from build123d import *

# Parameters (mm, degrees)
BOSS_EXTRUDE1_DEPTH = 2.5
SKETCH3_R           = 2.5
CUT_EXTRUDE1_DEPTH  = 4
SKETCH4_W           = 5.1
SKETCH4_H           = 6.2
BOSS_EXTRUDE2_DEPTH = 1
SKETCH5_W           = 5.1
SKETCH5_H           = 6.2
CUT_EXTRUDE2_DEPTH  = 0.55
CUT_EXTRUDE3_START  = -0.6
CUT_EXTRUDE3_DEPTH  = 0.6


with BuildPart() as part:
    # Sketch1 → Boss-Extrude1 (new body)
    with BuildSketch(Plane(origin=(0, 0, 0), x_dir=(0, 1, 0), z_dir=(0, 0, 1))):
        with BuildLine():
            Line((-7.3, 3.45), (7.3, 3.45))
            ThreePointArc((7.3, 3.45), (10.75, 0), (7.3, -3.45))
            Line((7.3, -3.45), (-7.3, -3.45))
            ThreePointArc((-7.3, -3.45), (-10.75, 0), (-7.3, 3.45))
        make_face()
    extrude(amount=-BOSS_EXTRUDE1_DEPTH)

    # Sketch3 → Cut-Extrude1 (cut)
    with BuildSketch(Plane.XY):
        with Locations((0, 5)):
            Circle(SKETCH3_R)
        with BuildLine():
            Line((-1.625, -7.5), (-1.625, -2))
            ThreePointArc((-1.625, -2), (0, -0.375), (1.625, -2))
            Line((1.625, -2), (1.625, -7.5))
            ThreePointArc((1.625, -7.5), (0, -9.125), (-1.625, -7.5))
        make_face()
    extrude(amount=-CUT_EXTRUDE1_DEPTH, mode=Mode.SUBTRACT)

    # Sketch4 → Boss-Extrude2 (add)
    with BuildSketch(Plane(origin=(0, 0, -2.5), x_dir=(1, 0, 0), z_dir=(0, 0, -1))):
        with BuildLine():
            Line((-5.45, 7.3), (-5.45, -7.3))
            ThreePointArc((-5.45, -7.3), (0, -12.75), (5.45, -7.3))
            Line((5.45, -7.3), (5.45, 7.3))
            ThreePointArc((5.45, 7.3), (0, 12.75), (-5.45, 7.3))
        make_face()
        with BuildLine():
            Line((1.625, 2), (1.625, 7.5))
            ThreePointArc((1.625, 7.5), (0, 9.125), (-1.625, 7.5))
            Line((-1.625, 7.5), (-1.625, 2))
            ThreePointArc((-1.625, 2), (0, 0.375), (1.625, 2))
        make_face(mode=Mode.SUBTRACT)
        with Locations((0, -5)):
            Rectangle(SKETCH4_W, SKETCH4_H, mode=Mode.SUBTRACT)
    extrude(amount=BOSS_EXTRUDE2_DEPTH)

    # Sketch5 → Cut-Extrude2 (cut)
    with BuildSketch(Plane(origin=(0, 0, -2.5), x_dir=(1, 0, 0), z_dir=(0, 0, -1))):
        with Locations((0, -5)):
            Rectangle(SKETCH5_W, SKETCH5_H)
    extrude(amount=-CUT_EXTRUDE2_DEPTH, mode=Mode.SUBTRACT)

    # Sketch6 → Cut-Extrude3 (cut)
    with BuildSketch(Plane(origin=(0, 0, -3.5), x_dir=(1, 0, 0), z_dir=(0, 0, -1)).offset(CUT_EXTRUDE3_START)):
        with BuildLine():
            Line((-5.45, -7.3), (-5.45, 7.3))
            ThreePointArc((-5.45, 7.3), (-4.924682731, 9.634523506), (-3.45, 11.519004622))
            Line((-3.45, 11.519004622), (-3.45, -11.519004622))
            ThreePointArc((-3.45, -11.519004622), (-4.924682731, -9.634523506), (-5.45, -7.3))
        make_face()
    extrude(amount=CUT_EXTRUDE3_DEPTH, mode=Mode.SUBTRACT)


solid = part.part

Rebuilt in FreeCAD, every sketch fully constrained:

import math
import FreeCAD as App
import Part
import Sketcher
from FreeCAD import Vector
Q = App.Units.Quantity

doc = App.newDocument("Part")
body = doc.addObject("PartDesign::Body", "Body")

sketch1 = doc.addObject("Sketcher::SketchObject", "Sketch")
body.addObject(sketch1)
sketch1.AttachmentSupport = (doc.XY_Plane, [""])
sketch1.MapMode = "FlatFace"
sketch1.addGeometry(Part.LineSegment(Vector(-3.5, 7.3, 0), Vector(-3.5, -7.3, 0)), False)
sketch1.addGeometry(Part.ArcOfCircle(Part.Circle(Vector(0, -7.3, 0), Vector(0, 0, 1), 3.5), math.radians(180), math.radians(360)), False)
sketch1.addGeometry(Part.LineSegment(Vector(3.5, -7.3, 0), Vector(3.5, 7.3, 0)), False)
sketch1.addGeometry(Part.ArcOfCircle(Part.Circle(Vector(0, 7.3, 0), Vector(0, 0, 1), 3.5), math.radians(0), math.radians(180)), False)
sketch1.addConstraint(Sketcher.Constraint("Tangent", 0, 2, 1, 1))
sketch1.addConstraint(Sketcher.Constraint("Tangent", 1, 2, 2, 1))
sketch1.addConstraint(Sketcher.Constraint("Tangent", 2, 2, 3, 1))
sketch1.addConstraint(Sketcher.Constraint("Tangent", 3, 2, 0, 1))
sketch1.addConstraint(Sketcher.Constraint("Vertical", 0))
sketch1.addConstraint(Sketcher.Constraint("Vertical", 2))
sketch1.addConstraint(Sketcher.Constraint("Symmetric", 1, 3, 3, 3, -1, 1))
sketch1.addConstraint(Sketcher.Constraint("Radius", 1, Q("3.45 mm")))
sketch1.addConstraint(Sketcher.Constraint("DistanceY", 0, 2, 0, 1, Q("14.6 mm")))
pad1 = doc.addObject("PartDesign::Pad", "Pad")
body.addObject(pad1)
pad1.Profile = sketch1
pad1.Length = 2.5
pad1.Reversed = True

sketch2 = doc.addObject("Sketcher::SketchObject", "Sketch001")
body.addObject(sketch2)
sketch2.AttachmentSupport = (doc.XY_Plane, [""])
sketch2.MapMode = "FlatFace"
sketch2.addGeometry(Part.Circle(Vector(0, 5, 0), Vector(0, 0, 1), 2.5), False)
sketch2.addGeometry(Part.LineSegment(Vector(-1.6, -2, 0), Vector(-1.6, -7.5, 0)), False)
sketch2.addGeometry(Part.ArcOfCircle(Part.Circle(Vector(0, -7.5, 0), Vector(0, 0, 1), 1.6), math.radians(180), math.radians(360)), False)
sketch2.addGeometry(Part.LineSegment(Vector(1.6, -7.5, 0), Vector(1.6, -2, 0)), False)
sketch2.addGeometry(Part.ArcOfCircle(Part.Circle(Vector(0, -2, 0), Vector(0, 0, 1), 1.6), math.radians(0), math.radians(180)), False)
sketch2.addConstraint(Sketcher.Constraint("Tangent", 1, 2, 2, 1))
sketch2.addConstraint(Sketcher.Constraint("Tangent", 2, 2, 3, 1))
sketch2.addConstraint(Sketcher.Constraint("Tangent", 3, 2, 4, 1))
sketch2.addConstraint(Sketcher.Constraint("Tangent", 4, 2, 1, 1))
sketch2.addConstraint(Sketcher.Constraint("Vertical", 1))
sketch2.addConstraint(Sketcher.Constraint("Vertical", 3))
sketch2.addConstraint(Sketcher.Constraint("PointOnObject", 0, 3, -2))
sketch2.addConstraint(Sketcher.Constraint("PointOnObject", 2, 3, -2))
sketch2.addConstraint(Sketcher.Constraint("Diameter", 0, Q("5 mm")))
sketch2.addConstraint(Sketcher.Constraint("DistanceY", 1, 2, 1, 1, Q("5.5 mm")))
sketch2.addConstraint(Sketcher.Constraint("DistanceY", -1, 1, 0, 3, Q("5 mm")))
sketch2.addConstraint(Sketcher.Constraint("DistanceY", 4, 3, -1, 1, Q("2 mm")))
sketch2.addConstraint(Sketcher.Constraint("Radius", 2, Q("1.625 mm")))
pocket1 = doc.addObject("PartDesign::Pocket", "Pocket")
body.addObject(pocket1)
pocket1.Profile = sketch2
pocket1.Length = 4

sketch3 = doc.addObject("Sketcher::SketchObject", "Sketch002")
body.addObject(sketch3)
sketch3.AttachmentSupport = (doc.XY_Plane, [""])
sketch3.MapMode = "FlatFace"
sketch3.AttachmentOffset = App.Placement(Vector(0, 0, -2.5), App.Rotation())
sketch3.addGeometry(Part.LineSegment(Vector(-5.5, -7.3, 0), Vector(-5.5, 7.3, 0)), False)
sketch3.addGeometry(Part.ArcOfCircle(Part.Circle(Vector(0, 7.3, 0), Vector(0, 0, 1), 5.5), math.radians(0), math.radians(180)), False)
sketch3.addGeometry(Part.LineSegment(Vector(5.5, 7.3, 0), Vector(5.5, -7.3, 0)), False)
sketch3.addGeometry(Part.ArcOfCircle(Part.Circle(Vector(0, -7.3, 0), Vector(0, 0, 1), 5.5), math.radians(180), math.radians(360)), False)
sketch3.addGeometry(Part.LineSegment(Vector(2.5, 8.1, 0), Vector(-2.5, 8.1, 0)), False)
sketch3.addGeometry(Part.LineSegment(Vector(-2.5, 8.1, 0), Vector(-2.5, 1.9, 0)), False)
sketch3.addGeometry(Part.LineSegment(Vector(-2.5, 1.9, 0), Vector(2.5, 1.9, 0)), False)
sketch3.addGeometry(Part.LineSegment(Vector(2.5, 1.9, 0), Vector(2.5, 8.1, 0)), False)
sketch3.addGeometry(Part.LineSegment(Vector(1.6, -7.5, 0), Vector(1.6, -2, 0)), False)
sketch3.addGeometry(Part.ArcOfCircle(Part.Circle(Vector(0, -2, 0), Vector(0, 0, 1), 1.6), math.radians(0), math.radians(180)), False)
sketch3.addGeometry(Part.LineSegment(Vector(-1.6, -2, 0), Vector(-1.6, -7.5, 0)), False)
sketch3.addGeometry(Part.ArcOfCircle(Part.Circle(Vector(0, -7.5, 0), Vector(0, 0, 1), 1.6), math.radians(180), math.radians(360)), False)
sketch3.addConstraint(Sketcher.Constraint("Tangent", 0, 2, 1, 2))
sketch3.addConstraint(Sketcher.Constraint("Tangent", 1, 1, 2, 1))
sketch3.addConstraint(Sketcher.Constraint("Tangent", 2, 2, 3, 2))
sketch3.addConstraint(Sketcher.Constraint("Tangent", 3, 1, 0, 1))
sketch3.addConstraint(Sketcher.Constraint("Coincident", 4, 2, 5, 1))
sketch3.addConstraint(Sketcher.Constraint("Coincident", 5, 2, 6, 1))
sketch3.addConstraint(Sketcher.Constraint("Coincident", 6, 2, 7, 1))
sketch3.addConstraint(Sketcher.Constraint("Coincident", 7, 2, 4, 1))
sketch3.addConstraint(Sketcher.Constraint("Tangent", 8, 2, 9, 1))
sketch3.addConstraint(Sketcher.Constraint("Tangent", 9, 2, 10, 1))
sketch3.addConstraint(Sketcher.Constraint("Tangent", 10, 2, 11, 1))
sketch3.addConstraint(Sketcher.Constraint("Tangent", 11, 2, 8, 1))
sketch3.addConstraint(Sketcher.Constraint("Vertical", 0))
sketch3.addConstraint(Sketcher.Constraint("Vertical", 2))
sketch3.addConstraint(Sketcher.Constraint("Horizontal", 4))
sketch3.addConstraint(Sketcher.Constraint("Vertical", 5))
sketch3.addConstraint(Sketcher.Constraint("Horizontal", 6))
sketch3.addConstraint(Sketcher.Constraint("Vertical", 7))
sketch3.addConstraint(Sketcher.Constraint("Vertical", 8))
sketch3.addConstraint(Sketcher.Constraint("Vertical", 10))
sketch3.addConstraint(Sketcher.Constraint("Symmetric", 1, 3, 3, 3, -1, 1))
sketch3.addConstraint(Sketcher.Constraint("PointOnObject", 9, 3, -2))
sketch3.addConstraint(Sketcher.Constraint("Radius", 1, Q("5.45 mm")))
sketch3.addConstraint(Sketcher.Constraint("DistanceX", 4, 2, 4, 1, Q("5.1 mm")))
sketch3.addConstraint(Sketcher.Constraint("DistanceY", 0, 1, 0, 2, Q("14.6 mm")))
sketch3.addConstraint(Sketcher.Constraint("DistanceY", 5, 2, 5, 1, Q("6.2 mm")))
sketch3.addConstraint(Sketcher.Constraint("DistanceY", 8, 1, 8, 2, Q("5.5 mm")))
sketch3.addConstraint(Sketcher.Constraint("DistanceY", 9, 3, -1, 1, Q("2 mm")))
sketch3.addConstraint(Sketcher.Constraint("Radius", 9, Q("1.625 mm")))
sketch3.addConstraint(Sketcher.Constraint("DistanceX", 4, 2, 1, 1, Q("8 mm")))
sketch3.addConstraint(Sketcher.Constraint("DistanceY", -1, 1, 4, 2, Q("8.1 mm")))
pad2 = doc.addObject("PartDesign::Pad", "Pad001")
body.addObject(pad2)
pad2.Profile = sketch3
pad2.Length = 1
pad2.Reversed = True

sketch4 = doc.addObject("Sketcher::SketchObject", "Sketch003")
body.addObject(sketch4)
sketch4.AttachmentSupport = (doc.XY_Plane, [""])
sketch4.MapMode = "FlatFace"
sketch4.AttachmentOffset = App.Placement(Vector(0, 0, -2.5), App.Rotation())
sketch4.addGeometry(Part.LineSegment(Vector(-3, 2, 0), Vector(-3, 8, 0)), False)
sketch4.addGeometry(Part.LineSegment(Vector(-3, 8, 0), Vector(3, 8, 0)), False)
sketch4.addGeometry(Part.LineSegment(Vector(3, 8, 0), Vector(3, 2, 0)), False)
sketch4.addGeometry(Part.LineSegment(Vector(3, 2, 0), Vector(-3, 2, 0)), False)
sketch4.addConstraint(Sketcher.Constraint("Coincident", 0, 2, 1, 1))
sketch4.addConstraint(Sketcher.Constraint("Coincident", 1, 2, 2, 1))
sketch4.addConstraint(Sketcher.Constraint("Coincident", 2, 2, 3, 1))
sketch4.addConstraint(Sketcher.Constraint("Coincident", 3, 2, 0, 1))
sketch4.addConstraint(Sketcher.Constraint("Vertical", 0))
sketch4.addConstraint(Sketcher.Constraint("Horizontal", 1))
sketch4.addConstraint(Sketcher.Constraint("Vertical", 2))
sketch4.addConstraint(Sketcher.Constraint("Horizontal", 3))
sketch4.addConstraint(Sketcher.Constraint("DistanceX", 1, 1, 1, 2, Q("5.1 mm")))
sketch4.addConstraint(Sketcher.Constraint("DistanceY", 0, 1, 0, 2, Q("6.2 mm")))
sketch4.addConstraint(Sketcher.Constraint("DistanceY", -1, 1, 0, 2, Q("8.1 mm")))
sketch4.addConstraint(Sketcher.Constraint("DistanceX", 0, 2, -1, 1, Q("2.55 mm")))
pocket2 = doc.addObject("PartDesign::Pocket", "Pocket001")
body.addObject(pocket2)
pocket2.Profile = sketch4
pocket2.Length = 0.55
pocket2.Reversed = True

sketch5 = doc.addObject("Sketcher::SketchObject", "Sketch004")
body.addObject(sketch5)
sketch5.AttachmentSupport = (doc.XY_Plane, [""])
sketch5.MapMode = "FlatFace"
sketch5.AttachmentOffset = App.Placement(Vector(0, 0, -2.9), App.Rotation())
sketch5.addGeometry(Part.LineSegment(Vector(-5.5, -7.3, 0), Vector(-5.5, 7.3, 0)), False)
sketch5.addGeometry(Part.ArcOfCircle(Part.Circle(Vector(0, 7.3, 0), Vector(0, 0, 1), 5.4), math.radians(129), math.radians(180)), False)
sketch5.addGeometry(Part.LineSegment(Vector(-3.5, 11.5, 0), Vector(-3.5, -11.5, 0)), False)
sketch5.addGeometry(Part.ArcOfCircle(Part.Circle(Vector(0, -7.3, 0), Vector(0, 0, 1), 5.4), math.radians(180), math.radians(231)), False)
sketch5.addConstraint(Sketcher.Constraint("Tangent", 0, 2, 1, 2))
sketch5.addConstraint(Sketcher.Constraint("Coincident", 1, 1, 2, 1))
sketch5.addConstraint(Sketcher.Constraint("Coincident", 2, 2, 3, 2))
sketch5.addConstraint(Sketcher.Constraint("Tangent", 3, 1, 0, 1))
sketch5.addConstraint(Sketcher.Constraint("Vertical", 0))
sketch5.addConstraint(Sketcher.Constraint("Vertical", 2))
sketch5.addConstraint(Sketcher.Constraint("Equal", 1, 3))
sketch5.addConstraint(Sketcher.Constraint("Symmetric", 1, 3, 3, 3, -1, 1))
sketch5.addConstraint(Sketcher.Constraint("Radius", 1, Q("5.45 mm")))
sketch5.addConstraint(Sketcher.Constraint("DistanceY", 0, 1, 0, 2, Q("14.6 mm")))
sketch5.addConstraint(Sketcher.Constraint("DistanceX", 0, 2, 1, 1, Q("2 mm")))
pocket3 = doc.addObject("PartDesign::Pocket", "Pocket002")
body.addObject(pocket3)
pocket3.Profile = sketch5
pocket3.Length = 0.6

doc.recompute()
